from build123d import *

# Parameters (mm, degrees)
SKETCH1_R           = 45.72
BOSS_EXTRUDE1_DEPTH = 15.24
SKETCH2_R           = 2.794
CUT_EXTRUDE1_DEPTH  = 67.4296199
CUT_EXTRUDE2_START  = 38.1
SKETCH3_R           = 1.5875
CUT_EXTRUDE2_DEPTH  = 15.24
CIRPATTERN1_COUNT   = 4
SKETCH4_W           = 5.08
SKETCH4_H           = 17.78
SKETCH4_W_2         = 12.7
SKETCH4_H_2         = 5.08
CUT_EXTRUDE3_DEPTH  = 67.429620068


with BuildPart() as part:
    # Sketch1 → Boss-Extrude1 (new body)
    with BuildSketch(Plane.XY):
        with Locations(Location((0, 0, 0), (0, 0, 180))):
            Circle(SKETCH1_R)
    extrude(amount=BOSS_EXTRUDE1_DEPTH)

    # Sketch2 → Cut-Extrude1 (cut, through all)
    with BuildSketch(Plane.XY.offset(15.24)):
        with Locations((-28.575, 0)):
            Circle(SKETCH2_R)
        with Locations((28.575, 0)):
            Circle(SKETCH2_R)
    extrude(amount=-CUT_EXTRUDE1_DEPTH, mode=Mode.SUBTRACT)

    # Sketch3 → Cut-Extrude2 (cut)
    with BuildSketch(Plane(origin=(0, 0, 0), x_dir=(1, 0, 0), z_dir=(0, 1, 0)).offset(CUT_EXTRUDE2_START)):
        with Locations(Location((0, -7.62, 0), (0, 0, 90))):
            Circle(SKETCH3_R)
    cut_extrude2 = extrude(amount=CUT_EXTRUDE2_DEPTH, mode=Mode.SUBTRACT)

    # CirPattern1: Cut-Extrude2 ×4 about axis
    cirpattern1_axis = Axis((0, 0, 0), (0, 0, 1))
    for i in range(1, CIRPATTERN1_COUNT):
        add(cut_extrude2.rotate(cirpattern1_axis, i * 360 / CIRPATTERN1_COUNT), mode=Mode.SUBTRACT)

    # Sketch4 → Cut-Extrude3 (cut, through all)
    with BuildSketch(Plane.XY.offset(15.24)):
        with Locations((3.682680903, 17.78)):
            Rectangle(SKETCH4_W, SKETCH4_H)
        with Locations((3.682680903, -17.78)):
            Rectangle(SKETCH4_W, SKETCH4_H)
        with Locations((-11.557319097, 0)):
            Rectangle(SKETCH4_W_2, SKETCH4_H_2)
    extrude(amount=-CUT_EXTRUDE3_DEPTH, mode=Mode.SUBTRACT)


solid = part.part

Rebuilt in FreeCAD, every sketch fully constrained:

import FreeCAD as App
import Part
import Sketcher
from FreeCAD import Vector
Q = App.Units.Quantity


def add_polygon(sketch, points):
    """Adds a closed chain of lines whose ends are joined by coincident constraints."""
    first, n = sketch.GeometryCount, len(points)
    for a, b in zip(points, points[1:] + points[:1]):
        sketch.addGeometry(Part.LineSegment(App.Vector(*a, 0), App.Vector(*b, 0)), False)
    for i in range(n):
        sketch.addConstraint(Sketcher.Constraint("Coincident", first + i, 2, first + (i + 1) % n, 1))

doc = App.newDocument("Part")
body = doc.addObject("PartDesign::Body", "Body")

# Sketch on XY plane
sketch1 = body.newObject("Sketcher::SketchObject", "Sketch")
sketch1.AttachmentSupport = (doc.getObject("XY_Plane"), [""])
sketch1.MapMode = "FlatFace"
sketch1.addGeometry(Part.Circle(Vector(0, 0, 0), Vector(0, 0, 1), 45.72), False)
sketch1.addConstraint([
    Sketcher.Constraint("Coincident", 0, 3, -1, 1),
    Sketcher.Constraint("Diameter", 0, Q("3.6 in")),
])
pad1 = body.newObject("PartDesign::Pad", "Pad")
pad1.Profile = sketch1
pad1.Length = Q("0.6 in")

# Sketch on XY plane
sketch2 = body.newObject("Sketcher::SketchObject", "Sketch001")
sketch2.AttachmentSupport = (doc.getObject("XY_Plane"), [""])
sketch2.MapMode = "FlatFace"
sketch2.AttachmentOffset = App.Placement(Vector(0, 0, 0.6 * 25.4), App.Rotation())
sketch2.addGeometry([
    Part.Circle(Vector(-28.575, 0, 0), Vector(0, 0, 1), 2.794),
    Part.Circle(Vector(28.575, 0, 0), Vector(0, 0, 1), 2.794),
], False)
sketch2.addConstraint([
    Sketcher.Constraint("Equal", 0, 1),
    Sketcher.Constraint("Symmetric", 0, 3, 1, 3, -1, 1),
    Sketcher.Constraint("PointOnObject", 0, 3, -1),
    Sketcher.Constraint("Diameter", 0, Q("0.22 in")),
    Sketcher.Constraint("DistanceX", 0, 3, 1, 3, Q("2.25 in")),
])
pocket1 = body.newObject("PartDesign::Pocket", "Pocket")
pocket1.Profile = sketch2
pocket1.Type = "ThroughAll"

# Sketch on XZ plane
sketch3 = body.newObject("Sketcher::SketchObject", "Sketch002")
sketch3.AttachmentSupport = (doc.getObject("XZ_Plane"), [""])
sketch3.MapMode = "FlatFace"
sketch3.AttachmentOffset = App.Placement(Vector(0, 0, -1.5 * 25.4), App.Rotation())
sketch3.addGeometry(Part.Circle(Vector(0, 7.62, 0), Vector(0, 0, 1), 1.5875), False)
sketch3.addConstraint([
    Sketcher.Constraint("PointOnObject", 0, 3, -2),
    Sketcher.Constraint("Diameter", 0, Q("0.125 in")),
    Sketcher.Constraint("DistanceY", -1, 1, 0, 3, Q("0.3 in")),
])
pocket2 = body.newObject("PartDesign::Pocket", "Pocket001")
pocket2.Profile = sketch3
pocket2.Length = Q("0.6 in")
doc.recompute()

polarpattern = body.newObject("PartDesign::PolarPattern", "PolarPattern")
polarpattern.Originals = [pocket2]
polarpattern.Axis = (doc.getObject("Z_Axis"), [""])
polarpattern.Angle = 360
polarpattern.Occurrences = 4
body.Tip = polarpattern

# Sketch on XY plane
sketch4 = body.newObject("Sketcher::SketchObject", "Sketch003")
sketch4.AttachmentSupport = (doc.getObject("XY_Plane"), [""])
sketch4.MapMode = "FlatFace"
sketch4.AttachmentOffset = App.Placement(Vector(0, 0, 0.6 * 25.4), App.Rotation())
add_polygon(sketch4, [(1.142681, 26.67), (1.142681, 8.89), (6.222681, 8.89), (6.222681, 26.67)])  # lines 0-3
add_polygon(sketch4, [(1.142681, -8.89), (1.142681, -26.67), (6.222681, -26.67), (6.222681, -8.89)])  # lines 4-7
add_polygon(sketch4, [(-17.907319, 2.54), (-17.907319, -2.54), (-5.207319, -2.54), (-5.207319, 2.54)])  # lines 8-11
sketch4.addConstraint([
    Sketcher.Constraint("Vertical", 0),
    Sketcher.Constraint("Horizontal", 1),
    Sketcher.Constraint("Vertical", 2),
    Sketcher.Constraint("Horizontal", 3),
    Sketcher.Constraint("Vertical", 4),
    Sketcher.Constraint("Horizontal", 5),
    Sketcher.Constraint("Vertical", 6),
    Sketcher.Constraint("Horizontal", 7),
    Sketcher.Constraint("Vertical", 8),
    Sketcher.Constraint("Horizontal", 9),
    Sketcher.Constraint("Vertical", 10),
    Sketcher.Constraint("Horizontal", 11),
    Sketcher.Constraint("Symmetric", 3, 2, 4, 2, -1),
    Sketcher.Constraint("Symmetric", 1, 2, 6, 2, -1),
    Sketcher.Constraint("Equal", 7, 8),
    Sketcher.Constraint("DistanceX", 1, 1, 1, 2, Q("0.2 in")),
    Sketcher.Constraint("DistanceX", 9, 1, 9, 2, Q("0.5 in")),
    Sketcher.Constraint("DistanceY", 0, 2, 0, 1, Q("0.7 in")),
    Sketcher.Constraint("DistanceY", 8, 2, -1, 1, Q("0.1 in")),
    Sketcher.Constraint("DistanceY", 4, 2, 0, 2, Q("1.4 in")),
    Sketcher.Constraint("DistanceX", 8, 2, 7, 2, Q("0.75 in")),
    Sketcher.Constraint("DistanceX", -1, 1, 0, 2, Q("1.142681 mm")),
])
pocket3 = body.newObject("PartDesign::Pocket", "Pocket002")
pocket3.Profile = sketch4
pocket3.Type = "ThroughAll"

doc.recompute()
